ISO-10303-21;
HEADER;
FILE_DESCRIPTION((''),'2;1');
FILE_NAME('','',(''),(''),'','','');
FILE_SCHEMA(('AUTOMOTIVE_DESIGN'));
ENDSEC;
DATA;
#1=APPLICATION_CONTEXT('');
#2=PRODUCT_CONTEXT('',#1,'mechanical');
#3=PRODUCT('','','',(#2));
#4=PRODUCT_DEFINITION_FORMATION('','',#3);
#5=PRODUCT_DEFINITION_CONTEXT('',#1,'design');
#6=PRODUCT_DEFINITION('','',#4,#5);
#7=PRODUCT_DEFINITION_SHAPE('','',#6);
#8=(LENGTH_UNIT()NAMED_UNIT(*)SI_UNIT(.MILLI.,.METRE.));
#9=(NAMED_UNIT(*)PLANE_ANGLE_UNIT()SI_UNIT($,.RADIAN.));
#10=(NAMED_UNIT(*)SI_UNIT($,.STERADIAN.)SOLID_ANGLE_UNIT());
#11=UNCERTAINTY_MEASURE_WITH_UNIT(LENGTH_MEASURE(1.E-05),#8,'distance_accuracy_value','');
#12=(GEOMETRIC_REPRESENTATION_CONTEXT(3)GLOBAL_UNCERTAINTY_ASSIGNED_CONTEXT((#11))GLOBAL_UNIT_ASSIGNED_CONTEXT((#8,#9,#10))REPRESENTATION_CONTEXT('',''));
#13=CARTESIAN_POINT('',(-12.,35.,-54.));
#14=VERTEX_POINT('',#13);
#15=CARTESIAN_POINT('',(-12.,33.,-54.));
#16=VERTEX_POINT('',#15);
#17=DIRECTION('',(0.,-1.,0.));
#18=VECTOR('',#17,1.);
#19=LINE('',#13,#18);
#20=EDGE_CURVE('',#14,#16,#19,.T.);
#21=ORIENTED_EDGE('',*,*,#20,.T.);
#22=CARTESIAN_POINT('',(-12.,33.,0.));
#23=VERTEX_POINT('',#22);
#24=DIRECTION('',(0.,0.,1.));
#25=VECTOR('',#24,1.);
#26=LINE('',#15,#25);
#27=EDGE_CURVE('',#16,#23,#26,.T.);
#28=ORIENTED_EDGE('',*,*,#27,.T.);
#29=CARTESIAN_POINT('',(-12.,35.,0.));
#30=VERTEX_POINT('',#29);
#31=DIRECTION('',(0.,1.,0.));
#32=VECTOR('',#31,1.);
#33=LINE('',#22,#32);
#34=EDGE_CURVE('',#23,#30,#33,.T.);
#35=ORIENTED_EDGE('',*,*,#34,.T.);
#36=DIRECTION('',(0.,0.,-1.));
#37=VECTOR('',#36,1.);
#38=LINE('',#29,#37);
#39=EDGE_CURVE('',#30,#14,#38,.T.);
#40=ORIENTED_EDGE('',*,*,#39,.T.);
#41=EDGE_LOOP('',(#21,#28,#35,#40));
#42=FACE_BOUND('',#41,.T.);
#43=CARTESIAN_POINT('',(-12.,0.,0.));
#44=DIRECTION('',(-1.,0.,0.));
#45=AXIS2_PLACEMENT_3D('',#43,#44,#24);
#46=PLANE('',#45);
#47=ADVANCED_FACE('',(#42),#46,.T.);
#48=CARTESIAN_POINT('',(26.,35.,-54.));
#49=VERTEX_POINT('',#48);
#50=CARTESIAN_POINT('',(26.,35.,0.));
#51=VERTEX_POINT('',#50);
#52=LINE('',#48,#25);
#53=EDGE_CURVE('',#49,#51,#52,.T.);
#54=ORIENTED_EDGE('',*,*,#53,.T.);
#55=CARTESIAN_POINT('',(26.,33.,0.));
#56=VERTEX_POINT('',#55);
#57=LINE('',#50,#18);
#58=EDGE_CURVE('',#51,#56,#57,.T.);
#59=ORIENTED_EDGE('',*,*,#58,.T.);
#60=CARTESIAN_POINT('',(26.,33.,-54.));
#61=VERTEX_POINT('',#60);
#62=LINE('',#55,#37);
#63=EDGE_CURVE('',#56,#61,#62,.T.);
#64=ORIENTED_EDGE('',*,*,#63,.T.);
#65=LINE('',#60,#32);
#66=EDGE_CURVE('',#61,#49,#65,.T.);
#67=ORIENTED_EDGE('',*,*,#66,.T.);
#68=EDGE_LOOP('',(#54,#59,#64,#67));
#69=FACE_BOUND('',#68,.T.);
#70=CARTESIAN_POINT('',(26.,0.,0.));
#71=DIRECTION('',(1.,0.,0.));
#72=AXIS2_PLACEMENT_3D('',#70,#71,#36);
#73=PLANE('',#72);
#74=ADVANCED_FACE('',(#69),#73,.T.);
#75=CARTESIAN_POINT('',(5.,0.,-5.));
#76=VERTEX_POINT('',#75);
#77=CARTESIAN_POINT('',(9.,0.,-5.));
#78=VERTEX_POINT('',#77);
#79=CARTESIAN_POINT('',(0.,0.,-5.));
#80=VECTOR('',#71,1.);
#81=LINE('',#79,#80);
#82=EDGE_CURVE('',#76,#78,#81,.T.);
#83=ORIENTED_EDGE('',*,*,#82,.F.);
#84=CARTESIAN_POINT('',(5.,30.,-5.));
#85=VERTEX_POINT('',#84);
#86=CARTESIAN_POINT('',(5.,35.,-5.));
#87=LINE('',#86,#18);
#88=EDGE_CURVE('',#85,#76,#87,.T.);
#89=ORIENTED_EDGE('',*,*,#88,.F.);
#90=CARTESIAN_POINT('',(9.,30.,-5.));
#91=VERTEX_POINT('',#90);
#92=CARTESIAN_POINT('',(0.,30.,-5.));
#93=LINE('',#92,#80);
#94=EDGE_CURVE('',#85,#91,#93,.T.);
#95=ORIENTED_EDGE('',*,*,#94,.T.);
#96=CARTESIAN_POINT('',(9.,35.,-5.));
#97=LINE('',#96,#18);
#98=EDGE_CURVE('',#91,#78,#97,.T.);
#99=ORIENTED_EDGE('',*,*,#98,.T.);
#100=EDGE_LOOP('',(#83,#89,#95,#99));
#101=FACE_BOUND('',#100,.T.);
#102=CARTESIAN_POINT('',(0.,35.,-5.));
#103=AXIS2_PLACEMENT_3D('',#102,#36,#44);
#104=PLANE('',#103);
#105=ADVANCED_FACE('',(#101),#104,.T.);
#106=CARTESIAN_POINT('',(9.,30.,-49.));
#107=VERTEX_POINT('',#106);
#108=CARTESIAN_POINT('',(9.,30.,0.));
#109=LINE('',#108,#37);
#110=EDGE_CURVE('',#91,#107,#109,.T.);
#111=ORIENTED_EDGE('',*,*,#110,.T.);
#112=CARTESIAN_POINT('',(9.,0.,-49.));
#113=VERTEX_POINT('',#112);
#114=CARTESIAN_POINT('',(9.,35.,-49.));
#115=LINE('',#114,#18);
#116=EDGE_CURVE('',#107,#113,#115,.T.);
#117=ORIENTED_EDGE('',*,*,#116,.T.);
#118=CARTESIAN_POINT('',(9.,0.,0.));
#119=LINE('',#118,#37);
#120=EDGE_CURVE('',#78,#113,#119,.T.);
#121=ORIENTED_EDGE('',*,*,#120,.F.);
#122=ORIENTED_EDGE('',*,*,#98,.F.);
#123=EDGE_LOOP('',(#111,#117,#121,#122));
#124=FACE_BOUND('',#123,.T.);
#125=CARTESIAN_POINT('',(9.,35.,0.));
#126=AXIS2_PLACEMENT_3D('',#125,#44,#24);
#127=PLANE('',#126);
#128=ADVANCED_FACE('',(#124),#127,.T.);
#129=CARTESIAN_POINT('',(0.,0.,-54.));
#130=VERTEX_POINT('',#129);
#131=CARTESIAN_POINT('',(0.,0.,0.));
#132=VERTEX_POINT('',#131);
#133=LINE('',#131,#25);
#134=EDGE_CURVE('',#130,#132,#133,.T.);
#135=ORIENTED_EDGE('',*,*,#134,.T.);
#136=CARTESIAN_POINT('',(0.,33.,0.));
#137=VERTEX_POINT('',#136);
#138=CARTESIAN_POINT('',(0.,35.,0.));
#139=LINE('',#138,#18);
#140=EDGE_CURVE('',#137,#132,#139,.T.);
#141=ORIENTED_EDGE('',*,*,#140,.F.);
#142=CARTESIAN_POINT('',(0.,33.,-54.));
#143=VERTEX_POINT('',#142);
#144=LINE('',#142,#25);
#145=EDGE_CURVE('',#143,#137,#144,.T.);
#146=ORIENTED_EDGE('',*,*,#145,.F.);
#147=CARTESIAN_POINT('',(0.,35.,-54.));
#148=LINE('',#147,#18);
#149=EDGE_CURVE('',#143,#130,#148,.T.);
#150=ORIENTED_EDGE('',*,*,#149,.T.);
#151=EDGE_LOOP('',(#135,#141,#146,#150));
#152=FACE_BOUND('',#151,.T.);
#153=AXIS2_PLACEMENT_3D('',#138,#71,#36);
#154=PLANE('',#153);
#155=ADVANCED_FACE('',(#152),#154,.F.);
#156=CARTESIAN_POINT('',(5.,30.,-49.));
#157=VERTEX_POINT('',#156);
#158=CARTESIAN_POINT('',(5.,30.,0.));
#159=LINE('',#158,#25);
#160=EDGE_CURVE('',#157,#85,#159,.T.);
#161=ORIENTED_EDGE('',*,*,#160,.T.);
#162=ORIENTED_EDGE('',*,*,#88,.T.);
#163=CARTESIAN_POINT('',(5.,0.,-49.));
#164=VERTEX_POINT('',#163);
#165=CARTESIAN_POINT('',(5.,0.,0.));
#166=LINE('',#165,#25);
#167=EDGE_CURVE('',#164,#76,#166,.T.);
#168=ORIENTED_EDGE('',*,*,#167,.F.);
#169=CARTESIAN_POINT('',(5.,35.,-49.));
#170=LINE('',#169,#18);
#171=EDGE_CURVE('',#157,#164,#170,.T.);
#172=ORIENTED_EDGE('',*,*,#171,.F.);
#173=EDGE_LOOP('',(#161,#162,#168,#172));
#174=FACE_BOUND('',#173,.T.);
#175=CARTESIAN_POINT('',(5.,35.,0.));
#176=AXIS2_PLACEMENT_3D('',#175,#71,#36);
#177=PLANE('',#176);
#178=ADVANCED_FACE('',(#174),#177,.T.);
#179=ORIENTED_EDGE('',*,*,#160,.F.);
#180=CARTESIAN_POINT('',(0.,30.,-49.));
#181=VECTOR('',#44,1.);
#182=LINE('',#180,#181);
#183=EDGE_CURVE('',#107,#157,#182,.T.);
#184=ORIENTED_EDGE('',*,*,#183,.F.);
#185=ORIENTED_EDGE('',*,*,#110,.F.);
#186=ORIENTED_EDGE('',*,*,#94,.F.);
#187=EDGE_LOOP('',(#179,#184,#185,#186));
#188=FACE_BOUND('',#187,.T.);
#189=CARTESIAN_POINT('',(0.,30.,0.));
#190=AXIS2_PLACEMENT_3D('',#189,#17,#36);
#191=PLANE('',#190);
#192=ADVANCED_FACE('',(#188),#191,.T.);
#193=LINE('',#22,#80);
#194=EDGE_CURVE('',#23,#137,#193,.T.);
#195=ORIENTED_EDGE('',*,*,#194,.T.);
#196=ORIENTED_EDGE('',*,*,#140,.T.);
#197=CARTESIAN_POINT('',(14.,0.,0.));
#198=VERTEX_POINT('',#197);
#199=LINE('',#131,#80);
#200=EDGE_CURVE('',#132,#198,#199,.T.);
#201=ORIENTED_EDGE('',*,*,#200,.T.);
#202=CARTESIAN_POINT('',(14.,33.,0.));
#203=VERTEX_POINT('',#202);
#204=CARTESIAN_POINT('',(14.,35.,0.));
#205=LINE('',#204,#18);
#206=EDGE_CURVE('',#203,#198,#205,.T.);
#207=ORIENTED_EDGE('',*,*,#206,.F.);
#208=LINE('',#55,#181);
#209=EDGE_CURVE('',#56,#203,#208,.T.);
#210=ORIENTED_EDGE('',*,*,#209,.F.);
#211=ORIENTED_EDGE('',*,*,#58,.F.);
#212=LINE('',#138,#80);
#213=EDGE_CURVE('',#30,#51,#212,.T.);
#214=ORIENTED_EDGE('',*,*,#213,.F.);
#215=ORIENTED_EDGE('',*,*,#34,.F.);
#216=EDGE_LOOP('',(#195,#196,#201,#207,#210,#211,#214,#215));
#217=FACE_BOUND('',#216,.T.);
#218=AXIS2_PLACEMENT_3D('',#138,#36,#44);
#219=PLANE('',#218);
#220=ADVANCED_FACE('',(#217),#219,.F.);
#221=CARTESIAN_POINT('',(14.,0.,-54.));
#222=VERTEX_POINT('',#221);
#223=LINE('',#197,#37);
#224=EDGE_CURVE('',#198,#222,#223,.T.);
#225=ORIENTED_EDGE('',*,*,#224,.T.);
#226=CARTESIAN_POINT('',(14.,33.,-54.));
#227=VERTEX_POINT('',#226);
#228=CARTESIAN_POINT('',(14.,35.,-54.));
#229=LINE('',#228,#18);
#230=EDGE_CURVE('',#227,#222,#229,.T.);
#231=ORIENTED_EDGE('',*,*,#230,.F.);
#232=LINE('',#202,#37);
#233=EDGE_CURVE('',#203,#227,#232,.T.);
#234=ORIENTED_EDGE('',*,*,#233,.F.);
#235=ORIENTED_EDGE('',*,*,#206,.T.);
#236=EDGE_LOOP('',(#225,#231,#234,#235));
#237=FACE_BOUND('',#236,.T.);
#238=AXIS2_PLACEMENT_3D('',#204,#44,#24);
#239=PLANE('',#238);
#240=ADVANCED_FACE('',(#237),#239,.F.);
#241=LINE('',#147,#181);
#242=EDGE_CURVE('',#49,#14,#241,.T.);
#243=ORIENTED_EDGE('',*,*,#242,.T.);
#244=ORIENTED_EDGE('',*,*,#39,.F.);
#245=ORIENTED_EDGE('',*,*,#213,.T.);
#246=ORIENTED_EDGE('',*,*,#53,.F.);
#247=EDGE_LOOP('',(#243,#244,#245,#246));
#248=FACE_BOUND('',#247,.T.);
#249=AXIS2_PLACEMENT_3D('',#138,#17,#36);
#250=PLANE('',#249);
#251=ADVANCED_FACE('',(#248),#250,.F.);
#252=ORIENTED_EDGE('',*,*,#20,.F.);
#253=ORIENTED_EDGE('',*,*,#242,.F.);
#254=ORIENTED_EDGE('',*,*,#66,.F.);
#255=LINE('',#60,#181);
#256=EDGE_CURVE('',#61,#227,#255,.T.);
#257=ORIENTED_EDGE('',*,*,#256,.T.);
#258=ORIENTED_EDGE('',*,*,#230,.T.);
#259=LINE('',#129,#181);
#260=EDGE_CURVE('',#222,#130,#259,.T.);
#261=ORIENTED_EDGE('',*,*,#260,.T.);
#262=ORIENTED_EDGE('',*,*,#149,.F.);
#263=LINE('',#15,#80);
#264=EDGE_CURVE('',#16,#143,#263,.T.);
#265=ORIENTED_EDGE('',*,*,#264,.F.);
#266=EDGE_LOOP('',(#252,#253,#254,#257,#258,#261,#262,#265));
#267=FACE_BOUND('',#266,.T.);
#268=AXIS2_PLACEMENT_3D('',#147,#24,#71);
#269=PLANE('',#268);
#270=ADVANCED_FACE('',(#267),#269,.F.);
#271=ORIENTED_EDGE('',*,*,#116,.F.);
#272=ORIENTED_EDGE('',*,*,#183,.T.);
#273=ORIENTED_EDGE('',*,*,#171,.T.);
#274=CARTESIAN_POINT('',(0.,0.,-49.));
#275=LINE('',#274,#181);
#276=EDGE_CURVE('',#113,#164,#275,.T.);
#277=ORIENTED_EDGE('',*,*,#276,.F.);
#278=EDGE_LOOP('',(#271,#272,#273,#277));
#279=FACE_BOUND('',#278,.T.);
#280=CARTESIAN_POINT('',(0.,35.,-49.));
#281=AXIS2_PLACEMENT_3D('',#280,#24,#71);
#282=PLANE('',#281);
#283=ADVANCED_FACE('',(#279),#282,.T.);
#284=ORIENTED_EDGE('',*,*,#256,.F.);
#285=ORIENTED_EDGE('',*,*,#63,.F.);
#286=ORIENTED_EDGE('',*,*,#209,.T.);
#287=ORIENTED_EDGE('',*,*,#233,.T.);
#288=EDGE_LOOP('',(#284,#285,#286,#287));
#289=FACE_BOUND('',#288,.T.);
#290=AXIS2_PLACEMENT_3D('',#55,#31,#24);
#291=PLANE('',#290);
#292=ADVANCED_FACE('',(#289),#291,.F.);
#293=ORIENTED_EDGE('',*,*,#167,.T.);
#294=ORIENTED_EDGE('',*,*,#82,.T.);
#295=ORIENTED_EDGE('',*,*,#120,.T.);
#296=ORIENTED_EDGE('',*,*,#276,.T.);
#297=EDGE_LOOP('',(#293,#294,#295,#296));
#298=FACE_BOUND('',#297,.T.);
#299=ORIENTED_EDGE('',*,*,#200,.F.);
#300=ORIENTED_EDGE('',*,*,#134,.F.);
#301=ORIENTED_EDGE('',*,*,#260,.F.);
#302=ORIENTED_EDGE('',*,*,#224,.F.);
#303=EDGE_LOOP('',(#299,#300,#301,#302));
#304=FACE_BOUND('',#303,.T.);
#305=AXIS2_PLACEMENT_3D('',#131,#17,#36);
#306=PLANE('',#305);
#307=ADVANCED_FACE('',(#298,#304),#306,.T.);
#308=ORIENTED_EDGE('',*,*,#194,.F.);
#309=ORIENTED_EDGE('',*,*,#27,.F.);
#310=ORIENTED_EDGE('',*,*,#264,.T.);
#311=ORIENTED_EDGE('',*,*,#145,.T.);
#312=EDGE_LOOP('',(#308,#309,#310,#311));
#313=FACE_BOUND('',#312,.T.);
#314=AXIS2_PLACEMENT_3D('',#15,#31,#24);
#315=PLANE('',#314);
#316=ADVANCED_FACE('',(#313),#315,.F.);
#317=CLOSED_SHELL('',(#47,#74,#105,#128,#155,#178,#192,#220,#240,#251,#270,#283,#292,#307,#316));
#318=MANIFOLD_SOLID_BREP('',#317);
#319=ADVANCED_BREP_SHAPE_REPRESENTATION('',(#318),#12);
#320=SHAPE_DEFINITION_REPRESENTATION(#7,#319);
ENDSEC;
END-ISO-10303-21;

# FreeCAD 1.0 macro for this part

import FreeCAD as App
import Part
import Sketcher
from FreeCAD import Vector
Q = App.Units.Quantity


def faces_at(feature, points):
    """Names of the faces that lie closest to the given points."""
    faces = feature.Shape.Faces
    near = lambda p: min(range(len(faces)), key=lambda i: faces[i].distToShape(Part.Vertex(*p))[0])
    return sorted({f"Face{near(p) + 1}" for p in points})


def add_polygon(sketch, points):
    """Adds a closed chain of lines whose ends are joined by coincident constraints."""
    first, n = sketch.GeometryCount, len(points)
    for a, b in zip(points, points[1:] + points[:1]):
        sketch.addGeometry(Part.LineSegment(App.Vector(*a, 0), App.Vector(*b, 0)), False)
    for i in range(n):
        sketch.addConstraint(Sketcher.Constraint("Coincident", first + i, 2, first + (i + 1) % n, 1))

doc = App.newDocument("Part")
body = doc.addObject("PartDesign::Body", "Body")

sketch1 = body.newObject("Sketcher::SketchObject", "Sketch")
sketch1.AttachmentSupport = (doc.getObject("XZ_Plane"), [""])
sketch1.MapMode = "FlatFace"
add_polygon(sketch1, [(0, -54), (0, 0), (14, 0), (14, -54)])
sketch1.addConstraint(Sketcher.Constraint("Vertical", 0))
sketch1.addConstraint(Sketcher.Constraint("Horizontal", 1))
sketch1.addConstraint(Sketcher.Constraint("Vertical", 2))
sketch1.addConstraint(Sketcher.Constraint("Horizontal", 3))
sketch1.addConstraint(Sketcher.Constraint("Coincident", 0, 2, -1, 1))
sketch1.addConstraint(Sketcher.Constraint("DistanceX", 1, 1, 1, 2, Q("14 mm")))
sketch1.addConstraint(Sketcher.Constraint("DistanceY", 0, 1, 0, 2, Q("54 mm")))
pad1 = body.newObject("PartDesign::Pad", "Pad")
pad1.Profile = sketch1
pad1.Length = 35
pad1.Reversed = True
doc.recompute()

thickness = body.newObject("PartDesign::Thickness", "Thickness")
thickness.Base = (pad1, faces_at(pad1, [(7, 0, -27)]))
thickness.Value = 5
thickness.Reversed = True
thickness.Join = "Intersection"

sketch2 = body.newObject("Sketcher::SketchObject", "Sketch001")
sketch2.AttachmentSupport = (doc.getObject("YZ_Plane"), [""])
sketch2.MapMode = "FlatFace"
add_polygon(sketch2, [(35, -54), (33, -54), (33, 0), (35, 0)])
sketch2.addConstraint(Sketcher.Constraint("Horizontal", 0))
sketch2.addConstraint(Sketcher.Constraint("Vertical", 1))
sketch2.addConstraint(Sketcher.Constraint("Horizontal", 2))
sketch2.addConstraint(Sketcher.Constraint("Vertical", 3))
sketch2.addConstraint(Sketcher.Constraint("PointOnObject", 1, 2, -1))
sketch2.addConstraint(Sketcher.Constraint("DistanceX", 0, 2, 0, 1, Q("2 mm")))
sketch2.addConstraint(Sketcher.Constraint("DistanceY", 1, 1, 1, 2, Q("54 mm")))
sketch2.addConstraint(Sketcher.Constraint("DistanceX", -1, 1, 0, 2, Q("33 mm")))
pad2 = body.newObject("PartDesign::Pad", "Pad001")
pad2.Profile = sketch2
pad2.Length = 12
pad2.Reversed = True

sketch3 = body.newObject("Sketcher::SketchObject", "Sketch002")
sketch3.AttachmentSupport = (doc.getObject("YZ_Plane"), [""])
sketch3.MapMode = "FlatFace"
sketch3.AttachmentOffset = App.Placement(Vector(0, 0, 14), App.Rotation())
add_polygon(sketch3, [(35, 0), (33, 0), (33, -54), (35, -54)])
sketch3.addConstraint(Sketcher.Constraint("Horizontal", 0))
sketch3.addConstraint(Sketcher.Constraint("Vertical", 1))
sketch3.addConstraint(Sketcher.Constraint("Horizontal", 2))
sketch3.addConstraint(Sketcher.Constraint("Vertical", 3))
sketch3.addConstraint(Sketcher.Constraint("PointOnObject", 0, 2, -1))
sketch3.addConstraint(Sketcher.Constraint("DistanceX", 0, 2, 0, 1, Q("2 mm")))
sketch3.addConstraint(Sketcher.Constraint("DistanceY", 1, 2, 1, 1, Q("54 mm")))
sketch3.addConstraint(Sketcher.Constraint("DistanceX", -1, 1, 0, 2, Q("33 mm")))
pad3 = body.newObject("PartDesign::Pad", "Pad002")
pad3.Profile = sketch3
pad3.Length = 12

doc.recompute()
